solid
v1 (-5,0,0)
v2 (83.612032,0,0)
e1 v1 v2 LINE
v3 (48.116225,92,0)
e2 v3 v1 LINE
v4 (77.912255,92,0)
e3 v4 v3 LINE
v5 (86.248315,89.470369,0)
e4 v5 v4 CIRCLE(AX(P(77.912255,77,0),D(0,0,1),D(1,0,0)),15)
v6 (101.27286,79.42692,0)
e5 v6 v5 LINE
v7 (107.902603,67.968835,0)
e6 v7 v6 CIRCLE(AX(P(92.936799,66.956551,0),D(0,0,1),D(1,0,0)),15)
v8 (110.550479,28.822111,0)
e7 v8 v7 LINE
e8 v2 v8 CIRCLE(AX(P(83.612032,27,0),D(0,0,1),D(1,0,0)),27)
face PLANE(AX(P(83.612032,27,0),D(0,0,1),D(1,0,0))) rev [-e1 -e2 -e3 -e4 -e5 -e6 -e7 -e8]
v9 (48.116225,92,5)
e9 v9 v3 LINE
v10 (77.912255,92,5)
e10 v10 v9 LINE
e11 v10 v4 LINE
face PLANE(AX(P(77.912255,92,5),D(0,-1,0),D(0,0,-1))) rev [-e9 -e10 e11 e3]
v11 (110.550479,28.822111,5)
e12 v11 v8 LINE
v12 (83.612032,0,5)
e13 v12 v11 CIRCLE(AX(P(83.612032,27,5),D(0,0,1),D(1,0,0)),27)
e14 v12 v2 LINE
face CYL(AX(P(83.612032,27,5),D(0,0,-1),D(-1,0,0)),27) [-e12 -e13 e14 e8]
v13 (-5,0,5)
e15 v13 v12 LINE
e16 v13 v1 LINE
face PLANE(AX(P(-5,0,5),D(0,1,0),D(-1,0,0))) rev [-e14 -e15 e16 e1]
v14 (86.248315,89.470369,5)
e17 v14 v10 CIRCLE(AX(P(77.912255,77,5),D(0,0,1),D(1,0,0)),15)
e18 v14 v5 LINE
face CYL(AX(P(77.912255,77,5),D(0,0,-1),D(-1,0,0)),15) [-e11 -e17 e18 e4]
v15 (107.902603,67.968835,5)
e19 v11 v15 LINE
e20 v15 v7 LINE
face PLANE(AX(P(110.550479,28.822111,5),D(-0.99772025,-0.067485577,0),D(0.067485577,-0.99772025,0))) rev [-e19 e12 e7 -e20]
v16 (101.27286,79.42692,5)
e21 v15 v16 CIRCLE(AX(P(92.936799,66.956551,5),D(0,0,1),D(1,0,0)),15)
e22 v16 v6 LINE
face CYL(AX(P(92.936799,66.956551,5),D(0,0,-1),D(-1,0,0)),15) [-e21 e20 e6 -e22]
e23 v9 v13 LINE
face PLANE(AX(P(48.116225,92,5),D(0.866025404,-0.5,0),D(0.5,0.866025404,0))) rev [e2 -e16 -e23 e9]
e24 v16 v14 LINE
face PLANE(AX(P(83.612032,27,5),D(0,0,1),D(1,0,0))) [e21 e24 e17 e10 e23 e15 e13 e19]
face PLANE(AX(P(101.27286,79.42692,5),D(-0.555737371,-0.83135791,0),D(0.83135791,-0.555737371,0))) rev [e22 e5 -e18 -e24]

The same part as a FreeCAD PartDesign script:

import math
import FreeCAD as App
import Part
import Sketcher
Q = App.Units.Quantity

doc = App.newDocument("Part")
body = doc.addObject("PartDesign::Body", "Body")

# Sketch on XY plane
sketch1 = doc.addObject("Sketcher::SketchObject", "Sketch")
body.addObject(sketch1)
sketch1.AttachmentSupport = (doc.XY_Plane, [""])
sketch1.MapMode = "FlatFace"
sketch1.addGeometry(Part.LineSegment(App.Vector(48, 92, 0), App.Vector(-5, 0, 0)), False)
sketch1.addGeometry(Part.LineSegment(App.Vector(-5, 0, 0), App.Vector(84, 0, 0)), False)
sketch1.addGeometry(Part.ArcOfCircle(Part.Circle(App.Vector(84, 27, 0), App.Vector(0, 0, 1), 27), math.radians(-90), math.radians(4)), False)
sketch1.addGeometry(Part.LineSegment(App.Vector(111, 29, 0), App.Vector(108, 68, 0)), False)
sketch1.addGeometry(Part.ArcOfCircle(Part.Circle(App.Vector(93, 67, 0), App.Vector(0, 0, 1), 15), math.radians(4), math.radians(56)), False)
sketch1.addGeometry(Part.LineSegment(App.Vector(101, 79, 0), App.Vector(86, 89, 0)), False)
sketch1.addGeometry(Part.ArcOfCircle(Part.Circle(App.Vector(78, 77, 0), App.Vector(0, 0, 1), 15), math.radians(56), math.radians(90)), False)
sketch1.addGeometry(Part.LineSegment(App.Vector(78, 92, 0), App.Vector(48, 92, 0)), False)
sketch1.addConstraint(Sketcher.Constraint("Coincident", 0, 2, 1, 1))
sketch1.addConstraint(Sketcher.Constraint("Tangent", 1, 2, 2, 1))
sketch1.addConstraint(Sketcher.Constraint("Tangent", 2, 2, 3, 1))
sketch1.addConstraint(Sketcher.Constraint("Tangent", 3, 2, 4, 1))
sketch1.addConstraint(Sketcher.Constraint("Tangent", 4, 2, 5, 1))
sketch1.addConstraint(Sketcher.Constraint("Tangent", 5, 2, 6, 1))
sketch1.addConstraint(Sketcher.Constraint("Tangent", 6, 2, 7, 1))
sketch1.addConstraint(Sketcher.Constraint("Coincident", 7, 2, 0, 1))
sketch1.addConstraint(Sketcher.Constraint("Horizontal", 1))
sketch1.addConstraint(Sketcher.Constraint("Horizontal", 7))
sketch1.addConstraint(Sketcher.Constraint("Equal", 4, 6))
sketch1.addConstraint(Sketcher.Constraint("PointOnObject", 0, 2, -1))
sketch1.addConstraint(Sketcher.Constraint("Radius", 2, Q("27 mm")))
sketch1.addConstraint(Sketcher.Constraint("Radius", 4, Q("15 mm")))
sketch1.addConstraint(Sketcher.Constraint("Angle", 0, Q("-120 deg")))
sketch1.addConstraint(Sketcher.Constraint("DistanceY", -1, 1, 6, 3, Q("77 mm")))
sketch1.addConstraint(Sketcher.Constraint("DistanceX", 0, 2, -1, 1, Q("5 mm")))
sketch1.addConstraint(Sketcher.Constraint("DistanceX", 7, 2, 7, 1, Q("29.79603 mm")))
sketch1.addConstraint(Sketcher.Constraint("DistanceX", -1, 1, 4, 3, Q("92.936799 mm")))
sketch1.addConstraint(Sketcher.Constraint("DistanceX", 1, 1, 1, 2, Q("88.612032 mm")))
sketch1.addConstraint(Sketcher.Constraint("DistanceY", -1, 1, 4, 3, Q("66.956551 mm")))
pad1 = doc.addObject("PartDesign::Pad", "Pad")
body.addObject(pad1)
pad1.Profile = sketch1
pad1.Length = 5

doc.recompute()
